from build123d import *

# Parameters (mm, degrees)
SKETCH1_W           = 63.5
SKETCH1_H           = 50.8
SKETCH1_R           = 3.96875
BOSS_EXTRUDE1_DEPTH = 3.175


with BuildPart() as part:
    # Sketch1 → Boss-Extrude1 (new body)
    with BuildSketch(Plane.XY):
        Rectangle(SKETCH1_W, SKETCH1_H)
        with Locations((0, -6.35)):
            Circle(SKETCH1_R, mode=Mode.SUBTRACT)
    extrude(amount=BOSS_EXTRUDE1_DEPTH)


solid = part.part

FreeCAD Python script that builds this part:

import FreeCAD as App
import Part
import Sketcher
from FreeCAD import Vector
Q = App.Units.Quantity

doc = App.newDocument("Part")
body = doc.addObject("PartDesign::Body", "Body")

# Sketch on XY plane
sketch1 = body.newObject("Sketcher::SketchObject", "Sketch")
sketch1.AttachmentSupport = (doc.getObject("XY_Plane"), [""])
sketch1.MapMode = "FlatFace"
sketch1.addGeometry([
    Part.LineSegment(Vector(-31.8, 25.4, 0), Vector(-31.8, -25.4, 0)),  # 0
    Part.LineSegment(Vector(-31.8, -25.4, 0), Vector(31.8, -25.4, 0)),  # 1
    Part.LineSegment(Vector(31.8, -25.4, 0), Vector(31.8, 25.4, 0)),  # 2
    Part.LineSegment(Vector(31.8, 25.4, 0), Vector(-31.8, 25.4, 0)),  # 3
    Part.Circle(Vector(0, -6.3, 0), Vector(0, 0, 1), 4),  # 4
], False)
sketch1.addConstraint([
    Sketcher.Constraint("Coincident", 0, 2, 1, 1),
    Sketcher.Constraint("Coincident", 1, 2, 2, 1),
    Sketcher.Constraint("Coincident", 2, 2, 3, 1),
    Sketcher.Constraint("Coincident", 3, 2, 0, 1),
    Sketcher.Constraint("Vertical", 0),
    Sketcher.Constraint("Horizontal", 1),
    Sketcher.Constraint("Vertical", 2),
    Sketcher.Constraint("Horizontal", 3),
    Sketcher.Constraint("Symmetric", 0, 2, 2, 2, -1, 1),
    Sketcher.Constraint("PointOnObject", 4, 3, -2),
    Sketcher.Constraint("DistanceY", 0, 2, 0, 1, Q("2 in")),
    Sketcher.Constraint("Diameter", 4, Q("0.3125 in")),
    Sketcher.Constraint("DistanceX", 1, 1, 1, 2, Q("2.5 in")),
    Sketcher.Constraint("DistanceY", 4, 3, -1, 1, Q("0.25 in")),
])
pad1 = body.newObject("PartDesign::Pad", "Pad")
pad1.Profile = sketch1
pad1.Length = Q("0.125 in")

doc.recompute()
